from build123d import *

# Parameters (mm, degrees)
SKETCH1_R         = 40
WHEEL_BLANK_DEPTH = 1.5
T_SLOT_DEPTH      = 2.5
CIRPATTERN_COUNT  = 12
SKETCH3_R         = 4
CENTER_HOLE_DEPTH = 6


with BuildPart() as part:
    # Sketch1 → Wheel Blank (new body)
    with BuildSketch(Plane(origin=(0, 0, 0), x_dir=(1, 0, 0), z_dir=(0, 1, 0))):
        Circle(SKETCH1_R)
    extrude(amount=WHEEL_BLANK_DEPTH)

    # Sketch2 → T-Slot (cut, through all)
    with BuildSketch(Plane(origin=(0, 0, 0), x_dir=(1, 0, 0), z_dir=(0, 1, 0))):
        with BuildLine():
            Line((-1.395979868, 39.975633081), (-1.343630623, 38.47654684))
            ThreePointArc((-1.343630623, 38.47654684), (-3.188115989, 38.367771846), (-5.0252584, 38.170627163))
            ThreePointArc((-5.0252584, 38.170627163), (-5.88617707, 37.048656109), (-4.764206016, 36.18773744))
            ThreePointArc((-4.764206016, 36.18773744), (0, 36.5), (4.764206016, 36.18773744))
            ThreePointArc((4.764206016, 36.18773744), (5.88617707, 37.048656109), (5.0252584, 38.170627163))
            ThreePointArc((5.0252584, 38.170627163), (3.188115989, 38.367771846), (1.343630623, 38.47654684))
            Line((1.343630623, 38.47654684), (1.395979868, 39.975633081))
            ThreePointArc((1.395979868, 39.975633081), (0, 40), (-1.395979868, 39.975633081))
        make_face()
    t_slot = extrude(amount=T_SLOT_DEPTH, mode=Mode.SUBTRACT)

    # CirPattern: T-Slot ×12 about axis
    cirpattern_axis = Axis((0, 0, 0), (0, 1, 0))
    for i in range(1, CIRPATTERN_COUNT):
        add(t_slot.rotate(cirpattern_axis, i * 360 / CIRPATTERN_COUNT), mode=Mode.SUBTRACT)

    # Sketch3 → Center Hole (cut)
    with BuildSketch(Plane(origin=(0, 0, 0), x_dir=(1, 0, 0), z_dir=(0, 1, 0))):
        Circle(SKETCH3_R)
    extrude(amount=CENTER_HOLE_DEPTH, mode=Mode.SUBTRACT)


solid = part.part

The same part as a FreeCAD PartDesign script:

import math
import FreeCAD as App
import Part
import Sketcher
Q = App.Units.Quantity

doc = App.newDocument("Part")
params = doc.addObject("Spreadsheet::Sheet", "Params")
for row, (alias, value) in enumerate([
    ("sketch1_diameter", "80 mm"),
    ("pad1_length", "1.5 mm"),
    ("sketch2_radius", "1 mm"),
    ("sketch2_radius2", "40 mm"),
    ("sketch2_radius3", "38.5 mm"),
    ("sketch3_diameter", "8 mm"),
    ("pocket2_length", "6 mm"),
], start=1):
    params.set(f"A{row}", alias)
    params.set(f"B{row}", "=" + value)
    params.setAlias(f"B{row}", alias)

body = doc.addObject("PartDesign::Body", "Body")

# Sketch on XZ plane
sketch1 = body.newObject("Sketcher::SketchObject", "Sketch")
sketch1.AttachmentSupport = (doc.getObject("XZ_Plane"), [""])
sketch1.MapMode = "FlatFace"
sketch1.addGeometry(Part.Circle(App.Vector(0, 0, 0), App.Vector(0, 0, 1), 40), False)
sketch1.addConstraint([
    Sketcher.Constraint("Coincident", 0, 3, -1, 1),
    Sketcher.Constraint("Diameter", 0, 80.0),
])
sketch1.setExpression("Constraints[1]", "Params.sketch1_diameter")
pad1 = body.newObject("PartDesign::Pad", "Pad")
pad1.Profile = sketch1
pad1.setExpression("Length", "Params.pad1_length")
pad1.Reversed = True

# Sketch on XZ plane
sketch2 = body.newObject("Sketcher::SketchObject", "Sketch001")
sketch2.AttachmentSupport = (doc.getObject("XZ_Plane"), [""])
sketch2.MapMode = "FlatFace"
sketch2.addGeometry([
    Part.LineSegment(App.Vector(-1.4, -40, 0), App.Vector(-1.3, -38.5, 0)),  # 0
    Part.ArcOfCircle(Part.Circle(App.Vector(0, 0, 0), App.Vector(0, 0, 1), 38.5), math.radians(-97.5), math.radians(-92)),  # 1
    Part.ArcOfCircle(Part.Circle(App.Vector(-4.9, -37.2, 0), App.Vector(0, 0, 1), 1), math.radians(82), math.radians(263)),  # 2
    Part.ArcOfCircle(Part.Circle(App.Vector(0, 0, 0), App.Vector(0, 0, 1), 36.5), math.radians(-97.5), math.radians(-82.5)),  # 3
    Part.ArcOfCircle(Part.Circle(App.Vector(4.9, -37.2, 0), App.Vector(0, 0, 1), 1), math.radians(-83), math.radians(98)),  # 4
    Part.ArcOfCircle(Part.Circle(App.Vector(0, 0, 0), App.Vector(0, 0, 1), 38.5), math.radians(-88), math.radians(-82.5)),  # 5
    Part.LineSegment(App.Vector(1.3, -38.5, 0), App.Vector(1.4, -40, 0)),  # 6
    Part.ArcOfCircle(Part.Circle(App.Vector(0, 0, 0), App.Vector(0, 0, 1), 40), math.radians(-92), math.radians(-88)),  # 7
], False)
sketch2.addConstraint([
    Sketcher.Constraint("Coincident", 0, 2, 1, 2),
    Sketcher.Constraint("Tangent", 1, 1, 2, 2),
    Sketcher.Constraint("Tangent", 2, 1, 3, 1),
    Sketcher.Constraint("Tangent", 3, 2, 4, 2),
    Sketcher.Constraint("Tangent", 4, 1, 5, 2),
    Sketcher.Constraint("Coincident", 5, 1, 6, 1),
    Sketcher.Constraint("Coincident", 6, 2, 7, 2),
    Sketcher.Constraint("Coincident", 7, 1, 0, 1),
    Sketcher.Constraint("Coincident", 1, 3, -1, 1),
    Sketcher.Constraint("Coincident", 3, 3, -1, 1),
    Sketcher.Constraint("Coincident", 5, 3, -1, 1),
    Sketcher.Constraint("Coincident", 7, 3, -1, 1),
    Sketcher.Constraint("Equal", 2, 4),
    Sketcher.Constraint("Horizontal", 2, 3, 4, 3),
    Sketcher.Constraint("Horizontal", 0, 2, 5, 1),
    Sketcher.Constraint("Horizontal", 6, 2, 7, 1),
    Sketcher.Constraint("Radius", 2, 1.0),
    Sketcher.Constraint("Radius", 7, 40.0),
    Sketcher.Constraint("Radius", 1, 38.5),
    Sketcher.Constraint("Angle", 0, Q("88 deg")),
    Sketcher.Constraint("DistanceX", 2, 3, 0, 2, 3.551102),
    Sketcher.Constraint("DistanceX", 0, 2, -1, 1, 1.343631),
])
sketch2.setExpression("Constraints[16]", "Params.sketch2_radius")
sketch2.setExpression("Constraints[17]", "Params.sketch2_radius2")
sketch2.setExpression("Constraints[18]", "Params.sketch2_radius3")
pocket1 = body.newObject("PartDesign::Pocket", "Pocket")
pocket1.Profile = sketch2
pocket1.Type = "ThroughAll"
doc.recompute()

polarpattern = body.newObject("PartDesign::PolarPattern", "PolarPattern")
polarpattern.Originals = [pocket1]
polarpattern.Axis = (doc.getObject("Y_Axis"), [""])
polarpattern.Angle = 360
polarpattern.Occurrences = 12
body.Tip = polarpattern

# Sketch on XZ plane
sketch3 = body.newObject("Sketcher::SketchObject", "Sketch002")
sketch3.AttachmentSupport = (doc.getObject("XZ_Plane"), [""])
sketch3.MapMode = "FlatFace"
sketch3.addGeometry(Part.Circle(App.Vector(0, 0, 0), App.Vector(0, 0, 1), 4), False)
sketch3.addConstraint([
    Sketcher.Constraint("Coincident", 0, 3, -1, 1),
    Sketcher.Constraint("Diameter", 0, 8.0),
])
sketch3.setExpression("Constraints[1]", "Params.sketch3_diameter")
pocket2 = body.newObject("PartDesign::Pocket", "Pocket001")
pocket2.Profile = sketch3
pocket2.setExpression("Length", "Params.pocket2_length")

doc.recompute()
